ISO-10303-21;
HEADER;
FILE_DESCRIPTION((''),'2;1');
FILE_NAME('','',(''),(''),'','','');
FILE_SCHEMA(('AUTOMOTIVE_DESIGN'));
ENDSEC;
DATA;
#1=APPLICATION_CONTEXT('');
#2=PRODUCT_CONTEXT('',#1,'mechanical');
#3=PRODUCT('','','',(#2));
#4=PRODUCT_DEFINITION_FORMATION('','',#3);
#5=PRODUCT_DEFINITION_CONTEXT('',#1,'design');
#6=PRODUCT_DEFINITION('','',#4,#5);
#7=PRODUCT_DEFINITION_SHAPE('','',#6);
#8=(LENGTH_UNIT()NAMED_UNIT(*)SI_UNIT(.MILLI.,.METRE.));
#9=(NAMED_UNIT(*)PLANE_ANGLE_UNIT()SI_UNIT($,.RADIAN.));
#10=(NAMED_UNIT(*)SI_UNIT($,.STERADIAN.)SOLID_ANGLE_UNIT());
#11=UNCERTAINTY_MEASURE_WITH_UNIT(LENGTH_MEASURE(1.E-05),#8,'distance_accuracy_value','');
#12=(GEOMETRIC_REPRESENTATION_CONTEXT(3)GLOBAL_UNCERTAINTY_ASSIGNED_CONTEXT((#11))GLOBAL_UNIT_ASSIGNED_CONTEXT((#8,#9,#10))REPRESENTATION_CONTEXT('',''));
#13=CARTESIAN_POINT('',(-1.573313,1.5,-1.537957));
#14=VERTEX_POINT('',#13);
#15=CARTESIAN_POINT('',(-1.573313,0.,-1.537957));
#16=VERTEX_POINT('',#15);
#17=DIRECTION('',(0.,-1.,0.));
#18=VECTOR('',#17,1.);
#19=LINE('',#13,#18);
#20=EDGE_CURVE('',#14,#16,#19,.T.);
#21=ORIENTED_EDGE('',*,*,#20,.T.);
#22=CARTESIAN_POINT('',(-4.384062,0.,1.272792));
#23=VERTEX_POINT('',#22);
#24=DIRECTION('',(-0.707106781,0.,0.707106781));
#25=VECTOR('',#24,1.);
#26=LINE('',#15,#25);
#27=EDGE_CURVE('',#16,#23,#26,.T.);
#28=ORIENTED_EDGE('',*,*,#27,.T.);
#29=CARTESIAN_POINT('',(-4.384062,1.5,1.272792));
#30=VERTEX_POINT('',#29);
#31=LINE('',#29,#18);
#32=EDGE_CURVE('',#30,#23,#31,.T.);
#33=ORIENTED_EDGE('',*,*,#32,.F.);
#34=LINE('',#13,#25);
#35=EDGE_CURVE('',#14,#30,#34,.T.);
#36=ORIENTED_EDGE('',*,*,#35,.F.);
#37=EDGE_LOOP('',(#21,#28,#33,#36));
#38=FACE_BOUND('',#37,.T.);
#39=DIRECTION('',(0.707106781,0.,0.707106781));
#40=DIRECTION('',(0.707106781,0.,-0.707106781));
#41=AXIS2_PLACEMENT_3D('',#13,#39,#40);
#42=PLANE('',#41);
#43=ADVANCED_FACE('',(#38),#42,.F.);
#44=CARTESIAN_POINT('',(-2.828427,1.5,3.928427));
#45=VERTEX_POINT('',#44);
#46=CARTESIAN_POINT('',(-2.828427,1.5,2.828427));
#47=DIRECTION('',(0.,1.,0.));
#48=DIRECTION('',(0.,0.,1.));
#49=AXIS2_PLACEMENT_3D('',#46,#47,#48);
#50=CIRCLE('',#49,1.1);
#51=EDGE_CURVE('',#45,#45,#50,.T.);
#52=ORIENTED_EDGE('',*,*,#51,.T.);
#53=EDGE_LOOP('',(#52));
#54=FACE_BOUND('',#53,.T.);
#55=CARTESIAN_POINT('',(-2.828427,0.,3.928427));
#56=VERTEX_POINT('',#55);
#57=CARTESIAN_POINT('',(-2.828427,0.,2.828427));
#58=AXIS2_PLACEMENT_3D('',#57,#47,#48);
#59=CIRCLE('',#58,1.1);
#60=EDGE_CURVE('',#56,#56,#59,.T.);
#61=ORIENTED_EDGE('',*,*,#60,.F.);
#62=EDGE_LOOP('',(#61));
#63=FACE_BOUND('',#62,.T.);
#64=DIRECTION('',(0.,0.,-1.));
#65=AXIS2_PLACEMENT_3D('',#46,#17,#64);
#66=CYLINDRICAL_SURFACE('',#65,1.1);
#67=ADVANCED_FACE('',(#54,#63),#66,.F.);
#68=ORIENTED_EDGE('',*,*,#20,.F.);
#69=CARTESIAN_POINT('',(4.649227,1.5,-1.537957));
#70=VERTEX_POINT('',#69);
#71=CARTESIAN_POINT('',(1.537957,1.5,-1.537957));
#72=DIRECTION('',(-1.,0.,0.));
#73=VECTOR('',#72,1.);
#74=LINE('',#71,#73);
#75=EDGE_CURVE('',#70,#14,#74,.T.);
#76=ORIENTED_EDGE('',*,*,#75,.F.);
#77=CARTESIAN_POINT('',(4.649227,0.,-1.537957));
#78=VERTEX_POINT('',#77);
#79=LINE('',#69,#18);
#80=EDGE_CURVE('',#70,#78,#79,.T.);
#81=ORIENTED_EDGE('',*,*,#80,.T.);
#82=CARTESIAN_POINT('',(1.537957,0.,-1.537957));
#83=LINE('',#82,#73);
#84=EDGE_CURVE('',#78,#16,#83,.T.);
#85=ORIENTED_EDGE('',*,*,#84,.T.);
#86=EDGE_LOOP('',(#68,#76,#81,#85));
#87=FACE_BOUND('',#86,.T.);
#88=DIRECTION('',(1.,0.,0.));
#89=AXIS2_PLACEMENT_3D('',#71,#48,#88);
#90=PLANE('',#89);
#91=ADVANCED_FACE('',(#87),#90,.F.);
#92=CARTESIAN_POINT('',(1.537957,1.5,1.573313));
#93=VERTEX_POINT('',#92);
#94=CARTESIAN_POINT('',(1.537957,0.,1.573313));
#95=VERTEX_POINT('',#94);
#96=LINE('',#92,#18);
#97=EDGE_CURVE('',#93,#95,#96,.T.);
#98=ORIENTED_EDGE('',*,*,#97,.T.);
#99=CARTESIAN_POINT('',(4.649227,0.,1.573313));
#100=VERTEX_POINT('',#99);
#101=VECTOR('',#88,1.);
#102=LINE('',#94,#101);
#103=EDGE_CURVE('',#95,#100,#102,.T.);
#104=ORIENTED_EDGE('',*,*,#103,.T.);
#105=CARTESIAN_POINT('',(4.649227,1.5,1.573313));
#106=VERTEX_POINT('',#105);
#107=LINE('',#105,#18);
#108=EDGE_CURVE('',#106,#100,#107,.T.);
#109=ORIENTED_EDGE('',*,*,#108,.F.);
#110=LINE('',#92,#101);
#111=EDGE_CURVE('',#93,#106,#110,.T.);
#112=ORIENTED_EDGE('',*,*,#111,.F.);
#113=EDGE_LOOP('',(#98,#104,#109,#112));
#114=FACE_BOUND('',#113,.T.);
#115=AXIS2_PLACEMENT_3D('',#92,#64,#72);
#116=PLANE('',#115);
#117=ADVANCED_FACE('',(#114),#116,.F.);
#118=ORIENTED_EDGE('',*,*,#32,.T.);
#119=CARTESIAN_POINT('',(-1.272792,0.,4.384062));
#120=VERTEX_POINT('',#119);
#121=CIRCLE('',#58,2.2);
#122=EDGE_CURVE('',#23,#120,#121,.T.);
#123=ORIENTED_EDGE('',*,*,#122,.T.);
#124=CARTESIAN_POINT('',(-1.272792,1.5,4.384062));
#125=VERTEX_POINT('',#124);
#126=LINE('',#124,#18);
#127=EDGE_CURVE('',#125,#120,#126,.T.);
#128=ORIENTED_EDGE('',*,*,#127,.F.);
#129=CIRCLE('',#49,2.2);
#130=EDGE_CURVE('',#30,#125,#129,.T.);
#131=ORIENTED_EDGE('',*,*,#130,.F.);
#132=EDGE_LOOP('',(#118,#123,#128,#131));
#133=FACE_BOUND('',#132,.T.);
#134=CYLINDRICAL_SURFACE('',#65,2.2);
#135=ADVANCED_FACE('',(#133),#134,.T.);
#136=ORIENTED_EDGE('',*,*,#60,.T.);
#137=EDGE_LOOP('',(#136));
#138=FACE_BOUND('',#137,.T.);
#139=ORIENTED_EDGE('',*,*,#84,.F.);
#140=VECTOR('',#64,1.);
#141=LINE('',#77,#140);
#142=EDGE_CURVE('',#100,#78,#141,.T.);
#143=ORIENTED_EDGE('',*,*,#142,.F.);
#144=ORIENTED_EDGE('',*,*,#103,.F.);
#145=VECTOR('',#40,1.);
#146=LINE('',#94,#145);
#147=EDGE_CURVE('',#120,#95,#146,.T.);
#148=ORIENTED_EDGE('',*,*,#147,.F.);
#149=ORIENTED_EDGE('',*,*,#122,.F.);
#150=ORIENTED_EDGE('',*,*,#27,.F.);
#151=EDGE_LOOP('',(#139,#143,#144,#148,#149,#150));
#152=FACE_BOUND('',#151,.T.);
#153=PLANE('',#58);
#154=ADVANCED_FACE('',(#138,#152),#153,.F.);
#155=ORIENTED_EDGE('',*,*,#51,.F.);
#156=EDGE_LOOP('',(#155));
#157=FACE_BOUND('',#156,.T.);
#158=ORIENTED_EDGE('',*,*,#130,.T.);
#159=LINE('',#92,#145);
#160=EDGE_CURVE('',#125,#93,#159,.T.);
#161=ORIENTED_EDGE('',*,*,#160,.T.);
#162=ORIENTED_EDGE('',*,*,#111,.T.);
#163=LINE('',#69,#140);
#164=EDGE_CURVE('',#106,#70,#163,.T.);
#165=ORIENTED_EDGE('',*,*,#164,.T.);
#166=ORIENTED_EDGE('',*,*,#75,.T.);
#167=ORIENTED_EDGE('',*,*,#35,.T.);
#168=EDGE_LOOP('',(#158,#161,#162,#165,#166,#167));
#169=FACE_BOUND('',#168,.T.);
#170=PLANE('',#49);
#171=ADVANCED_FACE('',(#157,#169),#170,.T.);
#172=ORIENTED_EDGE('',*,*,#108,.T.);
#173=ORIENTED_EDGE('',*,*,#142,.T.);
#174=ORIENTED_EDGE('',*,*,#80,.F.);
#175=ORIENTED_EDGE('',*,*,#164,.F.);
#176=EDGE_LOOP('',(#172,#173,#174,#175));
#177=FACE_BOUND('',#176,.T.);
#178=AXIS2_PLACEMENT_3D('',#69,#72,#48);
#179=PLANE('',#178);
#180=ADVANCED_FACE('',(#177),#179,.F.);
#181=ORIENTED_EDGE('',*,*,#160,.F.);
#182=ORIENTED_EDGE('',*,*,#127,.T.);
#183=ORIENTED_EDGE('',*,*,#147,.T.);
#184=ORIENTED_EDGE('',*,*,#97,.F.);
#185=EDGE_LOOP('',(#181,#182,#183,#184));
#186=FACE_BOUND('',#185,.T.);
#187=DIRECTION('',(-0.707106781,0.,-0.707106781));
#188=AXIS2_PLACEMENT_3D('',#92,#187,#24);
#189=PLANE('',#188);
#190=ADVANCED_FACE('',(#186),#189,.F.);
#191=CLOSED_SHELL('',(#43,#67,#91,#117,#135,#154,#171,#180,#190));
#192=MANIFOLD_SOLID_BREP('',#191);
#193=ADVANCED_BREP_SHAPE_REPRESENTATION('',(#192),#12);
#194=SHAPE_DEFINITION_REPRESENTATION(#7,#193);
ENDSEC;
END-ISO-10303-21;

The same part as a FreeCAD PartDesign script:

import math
import FreeCAD as App
import Part
import Sketcher

V = App.Vector
Q = App.Units.Quantity

doc = App.newDocument("Part")
body = doc.addObject("PartDesign::Body", "Body")

# Sketch on XZ plane
sketch1 = body.newObject("Sketcher::SketchObject", "Sketch")
sketch1.AttachmentSupport = (doc.getObject("XZ_Plane"), [""])
sketch1.MapMode = "FlatFace"
sketch1.addGeometry(Part.LineSegment(V(4.6, 1.6, 0), V(4.6, -1.5, 0)), False)
sketch1.addGeometry(Part.LineSegment(V(4.6, -1.5, 0), V(-1.6, -1.5, 0)), False)
sketch1.addGeometry(Part.LineSegment(V(-1.6, -1.5, 0), V(-4.4, 1.3, 0)), False)
sketch1.addGeometry(Part.ArcOfCircle(Part.Circle(V(-2.8, 2.8, 0), V(0, 0, 1), 2.2), math.radians(45), math.radians(225)), False)
sketch1.addGeometry(Part.LineSegment(V(-1.3, 4.4, 0), V(1.5, 1.6, 0)), False)
sketch1.addGeometry(Part.LineSegment(V(1.5, 1.6, 0), V(4.6, 1.6, 0)), False)
sketch1.addGeometry(Part.Circle(V(-2.8, 2.8, 0), V(0, 0, 1), 1.1), False)
sketch1.addConstraint(Sketcher.Constraint("Coincident", 0, 2, 1, 1))
sketch1.addConstraint(Sketcher.Constraint("Coincident", 1, 2, 2, 1))
sketch1.addConstraint(Sketcher.Constraint("Tangent", 2, 2, 3, 2))
sketch1.addConstraint(Sketcher.Constraint("Tangent", 3, 1, 4, 1))
sketch1.addConstraint(Sketcher.Constraint("Coincident", 4, 2, 5, 1))
sketch1.addConstraint(Sketcher.Constraint("Coincident", 5, 2, 0, 1))
sketch1.addConstraint(Sketcher.Constraint("Vertical", 0))
sketch1.addConstraint(Sketcher.Constraint("Horizontal", 1))
sketch1.addConstraint(Sketcher.Constraint("Horizontal", 5))
sketch1.addConstraint(Sketcher.Constraint("Coincident", 6, 3, 3, 3))
sketch1.addConstraint(Sketcher.Constraint("Parallel", 2, 4))
sketch1.addConstraint(Sketcher.Constraint("Equal", 5, 0))
sketch1.addConstraint(Sketcher.Constraint("Equal", 2, 4))
sketch1.addConstraint(Sketcher.Constraint("Diameter", 6, 2.2))
sketch1.addConstraint(Sketcher.Constraint("Radius", 3, 2.2))
sketch1.addConstraint(Sketcher.Constraint("Angle", 2, Q("135 deg")))
sketch1.addConstraint(Sketcher.Constraint("Distance", 2, 3.975))
sketch1.addConstraint(Sketcher.Constraint("DistanceX", 3, 3, -1, 1, 2.828427))
sketch1.addConstraint(Sketcher.Constraint("DistanceY", -1, 1, 3, 3, 2.828427))
pad1 = body.newObject("PartDesign::Pad", "Pad")
pad1.Profile = sketch1
pad1.Length = 1.5
pad1.Reversed = True

doc.recompute()
